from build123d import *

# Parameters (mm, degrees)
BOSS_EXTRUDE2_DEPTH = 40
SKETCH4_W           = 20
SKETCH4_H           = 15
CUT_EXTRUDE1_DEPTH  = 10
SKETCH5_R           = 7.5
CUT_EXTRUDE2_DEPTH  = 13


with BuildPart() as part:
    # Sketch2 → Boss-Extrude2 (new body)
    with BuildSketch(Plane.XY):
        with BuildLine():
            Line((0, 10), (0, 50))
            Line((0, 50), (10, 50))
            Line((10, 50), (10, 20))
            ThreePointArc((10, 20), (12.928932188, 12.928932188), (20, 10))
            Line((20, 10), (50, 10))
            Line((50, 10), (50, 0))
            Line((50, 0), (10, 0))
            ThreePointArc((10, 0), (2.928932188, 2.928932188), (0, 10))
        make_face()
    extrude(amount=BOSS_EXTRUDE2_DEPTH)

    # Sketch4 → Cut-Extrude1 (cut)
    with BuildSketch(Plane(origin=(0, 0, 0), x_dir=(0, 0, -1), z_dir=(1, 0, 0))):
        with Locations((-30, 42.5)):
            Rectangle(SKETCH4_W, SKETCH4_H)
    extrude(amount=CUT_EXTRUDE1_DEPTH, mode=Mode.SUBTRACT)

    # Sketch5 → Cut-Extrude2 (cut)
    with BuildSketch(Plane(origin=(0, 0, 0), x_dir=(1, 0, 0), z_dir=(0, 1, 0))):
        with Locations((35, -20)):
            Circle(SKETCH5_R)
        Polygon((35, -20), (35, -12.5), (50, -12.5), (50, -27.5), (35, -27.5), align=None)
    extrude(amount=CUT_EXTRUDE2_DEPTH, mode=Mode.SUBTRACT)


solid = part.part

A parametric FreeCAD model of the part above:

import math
import FreeCAD as App
import Part
import Sketcher

V = App.Vector


def add_polygon(sketch, points):
    """Adds a closed chain of lines whose ends are joined by coincident constraints."""
    first, n = sketch.GeometryCount, len(points)
    for a, b in zip(points, points[1:] + points[:1]):
        sketch.addGeometry(Part.LineSegment(App.Vector(*a, 0), App.Vector(*b, 0)), False)
    for i in range(n):
        sketch.addConstraint(Sketcher.Constraint("Coincident", first + i, 2, first + (i + 1) % n, 1))

doc = App.newDocument("Part")
params = doc.addObject("Spreadsheet::Sheet", "Params")
for row, (alias, value) in enumerate([
    ("sketch1_radius", "10 mm"),
    ("sketch1_width", "40 mm"),
    ("pad1_length", "40 mm"),
    ("sketch2_width", "15 mm"),
    ("sketch2_height", "20 mm"),
    ("pocket1_length", "10 mm"),
    ("sketch3_radius", "7.5 mm"),
    ("pocket2_length", "13 mm"),
], start=1):
    params.set(f"A{row}", alias)
    params.set(f"B{row}", "=" + value)
    params.setAlias(f"B{row}", alias)

body = doc.addObject("PartDesign::Body", "Body")

sketch1 = body.newObject("Sketcher::SketchObject", "Sketch")
sketch1.AttachmentSupport = (doc.getObject("XY_Plane"), [""])
sketch1.MapMode = "FlatFace"
sketch1.addGeometry([
    Part.LineSegment(V(0, 50, 0), V(0, 10, 0)),
    Part.ArcOfCircle(Part.Circle(V(10, 10, 0), V(0, 0, 1), 10), math.radians(180), math.radians(270)),
    Part.LineSegment(V(10, 0, 0), V(50, 0, 0)),
    Part.LineSegment(V(50, 0, 0), V(50, 10, 0)),
    Part.LineSegment(V(50, 10, 0), V(20, 10, 0)),
    Part.ArcOfCircle(Part.Circle(V(20, 20, 0), V(0, 0, 1), 10), math.radians(180), math.radians(270)),
    Part.LineSegment(V(10, 20, 0), V(10, 50, 0)),
    Part.LineSegment(V(10, 50, 0), V(0, 50, 0)),
], False)
sketch1.addConstraint([
    Sketcher.Constraint("Tangent", 0, 2, 1, 1),
    Sketcher.Constraint("Tangent", 1, 2, 2, 1),
    Sketcher.Constraint("Coincident", 2, 2, 3, 1),
    Sketcher.Constraint("Coincident", 3, 2, 4, 1),
    Sketcher.Constraint("Tangent", 4, 2, 5, 2),
    Sketcher.Constraint("Tangent", 5, 1, 6, 1),
    Sketcher.Constraint("Coincident", 6, 2, 7, 1),
    Sketcher.Constraint("Coincident", 7, 2, 0, 1),
    Sketcher.Constraint("Vertical", 0),
    Sketcher.Constraint("Horizontal", 2),
    Sketcher.Constraint("Vertical", 3),
    Sketcher.Constraint("Horizontal", 4),
    Sketcher.Constraint("Vertical", 6),
    Sketcher.Constraint("Horizontal", 7),
    Sketcher.Constraint("Equal", 1, 5),
    Sketcher.Constraint("PointOnObject", 0, 2, -2),
    Sketcher.Constraint("PointOnObject", 1, 2, -1),
    Sketcher.Constraint("Horizontal", 0, 2, 3, 2),
    Sketcher.Constraint("Vertical", 1, 2, 5, 1),
    Sketcher.Constraint("Equal", 2, 0),
    Sketcher.Constraint("Radius", 1, 10.0),
    Sketcher.Constraint("DistanceX", 2, 1, 2, 2, 40.0),
])
sketch1.setExpression("Constraints[20]", "Params.sketch1_radius")
sketch1.setExpression("Constraints[21]", "Params.sketch1_width")
pad1 = body.newObject("PartDesign::Pad", "Pad")
pad1.Profile = sketch1
pad1.setExpression("Length", "Params.pad1_length")

sketch2 = body.newObject("Sketcher::SketchObject", "Sketch001")
sketch2.AttachmentSupport = (doc.getObject("YZ_Plane"), [""])
sketch2.MapMode = "FlatFace"
add_polygon(sketch2, [(50, 40), (35, 40), (35, 20), (50, 20)])
sketch2.addConstraint([
    Sketcher.Constraint("Horizontal", 0),
    Sketcher.Constraint("Vertical", 1),
    Sketcher.Constraint("Horizontal", 2),
    Sketcher.Constraint("Vertical", 3),
    Sketcher.Constraint("DistanceX", 0, 2, 0, 1, 15.0),
    Sketcher.Constraint("DistanceY", 1, 2, 1, 1, 20.0),
    Sketcher.Constraint("DistanceX", -1, 1, 0, 2, 35.0),
    Sketcher.Constraint("DistanceY", -1, 1, 0, 2, 40.0),
])
sketch2.setExpression("Constraints[8]", "Params.sketch2_width")
sketch2.setExpression("Constraints[9]", "Params.sketch2_height")
pocket1 = body.newObject("PartDesign::Pocket", "Pocket")
pocket1.Profile = sketch2
pocket1.setExpression("Length", "Params.pocket1_length")
pocket1.Reversed = True

sketch3 = body.newObject("Sketcher::SketchObject", "Sketch002")
sketch3.AttachmentSupport = (doc.getObject("XZ_Plane"), [""])
sketch3.MapMode = "FlatFace"
sketch3.addGeometry([
    Part.LineSegment(V(50, 28, 0), V(50, 12, 0)),
    Part.LineSegment(V(50, 12, 0), V(35, 12, 0)),
    Part.ArcOfCircle(Part.Circle(V(35, 20, 0), V(0, 0, 1), 8), math.radians(90), math.radians(270)),
    Part.LineSegment(V(35, 28, 0), V(50, 28, 0)),
], False)
sketch3.addConstraint([
    Sketcher.Constraint("Coincident", 0, 2, 1, 1),
    Sketcher.Constraint("Tangent", 1, 2, 2, 2),
    Sketcher.Constraint("Tangent", 2, 1, 3, 1),
    Sketcher.Constraint("Coincident", 3, 2, 0, 1),
    Sketcher.Constraint("Vertical", 0),
    Sketcher.Constraint("Horizontal", 1),
    Sketcher.Constraint("Horizontal", 3),
    Sketcher.Constraint("Equal", 3, 0),
    Sketcher.Constraint("Radius", 2, 7.5),
    Sketcher.Constraint("DistanceX", -1, 1, 2, 3, 35.0),
    Sketcher.Constraint("DistanceY", -1, 1, 2, 3, 20.0),
])
sketch3.setExpression("Constraints[8]", "Params.sketch3_radius")
pocket2 = body.newObject("PartDesign::Pocket", "Pocket001")
pocket2.Profile = sketch3
pocket2.setExpression("Length", "Params.pocket2_length")

doc.recompute()
